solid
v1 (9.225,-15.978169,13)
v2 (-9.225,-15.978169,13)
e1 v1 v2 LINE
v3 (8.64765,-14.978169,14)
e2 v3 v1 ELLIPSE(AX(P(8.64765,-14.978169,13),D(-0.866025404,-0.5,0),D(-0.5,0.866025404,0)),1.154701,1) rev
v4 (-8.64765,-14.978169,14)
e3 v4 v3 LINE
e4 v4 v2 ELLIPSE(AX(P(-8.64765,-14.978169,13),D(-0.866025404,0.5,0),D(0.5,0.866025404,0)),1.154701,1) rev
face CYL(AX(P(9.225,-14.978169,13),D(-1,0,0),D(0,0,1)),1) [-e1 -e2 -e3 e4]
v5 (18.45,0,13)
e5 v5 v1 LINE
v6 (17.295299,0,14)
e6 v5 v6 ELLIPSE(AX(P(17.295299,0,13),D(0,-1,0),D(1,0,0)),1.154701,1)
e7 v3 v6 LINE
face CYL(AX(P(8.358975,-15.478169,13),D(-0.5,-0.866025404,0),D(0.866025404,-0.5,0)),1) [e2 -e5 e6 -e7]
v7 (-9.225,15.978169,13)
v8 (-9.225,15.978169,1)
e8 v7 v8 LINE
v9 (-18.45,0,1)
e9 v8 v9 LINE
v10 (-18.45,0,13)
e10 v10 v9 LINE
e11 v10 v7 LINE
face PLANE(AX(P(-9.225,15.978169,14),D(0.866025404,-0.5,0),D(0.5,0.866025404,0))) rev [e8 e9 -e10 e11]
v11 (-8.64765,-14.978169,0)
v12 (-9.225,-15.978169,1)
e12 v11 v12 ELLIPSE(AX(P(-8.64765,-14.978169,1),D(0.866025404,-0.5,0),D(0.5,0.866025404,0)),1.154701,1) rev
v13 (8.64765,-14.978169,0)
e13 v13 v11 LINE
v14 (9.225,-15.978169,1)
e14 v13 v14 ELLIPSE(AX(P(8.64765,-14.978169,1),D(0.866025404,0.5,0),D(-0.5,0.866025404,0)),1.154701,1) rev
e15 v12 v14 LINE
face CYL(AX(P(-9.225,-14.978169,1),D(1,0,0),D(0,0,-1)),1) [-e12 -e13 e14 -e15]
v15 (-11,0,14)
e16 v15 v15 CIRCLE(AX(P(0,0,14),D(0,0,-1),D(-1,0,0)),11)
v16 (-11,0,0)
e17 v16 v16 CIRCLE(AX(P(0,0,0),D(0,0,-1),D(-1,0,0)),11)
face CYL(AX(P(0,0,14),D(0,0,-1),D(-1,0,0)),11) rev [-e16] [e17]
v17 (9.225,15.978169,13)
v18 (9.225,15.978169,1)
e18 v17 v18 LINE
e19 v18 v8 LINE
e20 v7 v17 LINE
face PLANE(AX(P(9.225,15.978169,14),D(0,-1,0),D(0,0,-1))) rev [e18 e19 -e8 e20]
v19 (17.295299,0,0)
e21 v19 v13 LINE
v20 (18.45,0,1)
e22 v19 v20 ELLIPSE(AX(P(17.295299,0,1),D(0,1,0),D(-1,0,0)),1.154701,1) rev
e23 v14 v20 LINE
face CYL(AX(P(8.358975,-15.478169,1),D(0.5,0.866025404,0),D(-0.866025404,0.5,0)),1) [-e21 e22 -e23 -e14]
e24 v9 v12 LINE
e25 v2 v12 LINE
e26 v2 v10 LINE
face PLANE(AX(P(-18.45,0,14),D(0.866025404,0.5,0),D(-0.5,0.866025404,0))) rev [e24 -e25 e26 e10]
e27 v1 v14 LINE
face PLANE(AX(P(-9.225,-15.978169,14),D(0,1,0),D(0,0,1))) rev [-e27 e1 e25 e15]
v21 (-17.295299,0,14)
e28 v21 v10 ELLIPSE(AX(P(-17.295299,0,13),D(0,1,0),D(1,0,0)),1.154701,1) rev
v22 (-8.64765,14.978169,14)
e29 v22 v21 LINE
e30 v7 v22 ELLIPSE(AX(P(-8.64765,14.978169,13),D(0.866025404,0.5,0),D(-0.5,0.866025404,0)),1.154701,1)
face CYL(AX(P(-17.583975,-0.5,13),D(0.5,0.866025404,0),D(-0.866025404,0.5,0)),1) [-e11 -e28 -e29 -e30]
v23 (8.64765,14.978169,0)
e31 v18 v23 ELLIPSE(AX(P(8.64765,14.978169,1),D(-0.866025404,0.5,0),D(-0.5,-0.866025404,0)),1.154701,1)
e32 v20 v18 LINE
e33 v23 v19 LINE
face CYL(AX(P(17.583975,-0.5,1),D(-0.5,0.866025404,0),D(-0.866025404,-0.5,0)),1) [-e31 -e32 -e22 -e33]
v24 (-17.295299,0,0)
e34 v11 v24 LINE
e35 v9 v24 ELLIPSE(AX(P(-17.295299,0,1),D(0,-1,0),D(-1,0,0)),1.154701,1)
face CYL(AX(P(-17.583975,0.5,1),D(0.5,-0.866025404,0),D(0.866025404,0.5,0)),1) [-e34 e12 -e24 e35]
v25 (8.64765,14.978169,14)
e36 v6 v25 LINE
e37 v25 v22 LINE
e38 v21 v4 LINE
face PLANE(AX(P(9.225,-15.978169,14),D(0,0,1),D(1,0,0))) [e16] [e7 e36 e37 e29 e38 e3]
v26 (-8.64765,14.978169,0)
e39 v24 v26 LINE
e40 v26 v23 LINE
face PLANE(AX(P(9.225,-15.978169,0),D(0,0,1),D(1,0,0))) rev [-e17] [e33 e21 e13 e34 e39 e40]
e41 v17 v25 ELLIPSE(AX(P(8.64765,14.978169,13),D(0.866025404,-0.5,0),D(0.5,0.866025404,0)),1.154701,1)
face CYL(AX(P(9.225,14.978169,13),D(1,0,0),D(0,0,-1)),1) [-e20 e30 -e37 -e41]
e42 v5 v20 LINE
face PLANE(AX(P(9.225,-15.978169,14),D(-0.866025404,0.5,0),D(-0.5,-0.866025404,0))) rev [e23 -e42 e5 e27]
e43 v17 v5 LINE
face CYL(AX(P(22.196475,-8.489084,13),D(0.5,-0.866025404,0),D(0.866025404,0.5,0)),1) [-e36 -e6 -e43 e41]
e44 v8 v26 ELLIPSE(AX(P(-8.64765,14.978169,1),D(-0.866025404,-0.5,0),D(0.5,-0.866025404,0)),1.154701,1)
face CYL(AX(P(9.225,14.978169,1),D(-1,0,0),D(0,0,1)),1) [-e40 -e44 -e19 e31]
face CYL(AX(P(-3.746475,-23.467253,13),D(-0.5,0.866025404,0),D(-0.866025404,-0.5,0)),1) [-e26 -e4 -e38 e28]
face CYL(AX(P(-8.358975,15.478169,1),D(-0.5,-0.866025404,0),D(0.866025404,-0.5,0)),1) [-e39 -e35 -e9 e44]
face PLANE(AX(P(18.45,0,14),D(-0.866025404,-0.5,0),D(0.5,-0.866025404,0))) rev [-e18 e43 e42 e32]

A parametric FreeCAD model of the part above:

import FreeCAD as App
import Part
import Sketcher

V = App.Vector
Q = App.Units.Quantity


def edges_at(feature, points):
    """Names of the edges that pass closest to the given points."""
    edges = feature.Shape.Edges
    near = lambda p: min(range(len(edges)), key=lambda i: edges[i].distToShape(Part.Vertex(*p))[0])
    return sorted({f"Edge{near(p) + 1}" for p in points})


def add_polygon(sketch, points):
    """Adds a closed chain of lines whose ends are joined by coincident constraints."""
    first, n = sketch.GeometryCount, len(points)
    for a, b in zip(points, points[1:] + points[:1]):
        sketch.addGeometry(Part.LineSegment(App.Vector(*a, 0), App.Vector(*b, 0)), False)
    for i in range(n):
        sketch.addConstraint(Sketcher.Constraint("Coincident", first + i, 2, first + (i + 1) % n, 1))

doc = App.newDocument("Part")
params = doc.addObject("Spreadsheet::Sheet", "Params")
for row, (alias, value) in enumerate([
    ("sketch1_width", "18.45 mm"),
    ("pad1_length", "14 mm"),
    ("sketch2_diameter", "22 mm"),
    ("fillet_radius", "1 mm"),
], start=1):
    params.set(f"A{row}", alias)
    params.set(f"B{row}", "=" + value)
    params.setAlias(f"B{row}", alias)

body = doc.addObject("PartDesign::Body", "Body")

# Sketch on XY plane
sketch1 = body.newObject("Sketcher::SketchObject", "Sketch")
sketch1.AttachmentSupport = (doc.getObject("XY_Plane"), [""])
sketch1.MapMode = "FlatFace"
add_polygon(sketch1, [(9, -16), (18, 0), (9, 16), (-9, 16), (-18, 0), (-9, -16)])  # lines 0-5
sketch1.addConstraint([
    Sketcher.Constraint("Horizontal", 2),
    Sketcher.Constraint("Horizontal", 5),
    Sketcher.Constraint("Symmetric", 0, 2, 3, 2, -1, 1),
    Sketcher.Constraint("Symmetric", 1, 2, 4, 2, -1, 1),
    Sketcher.Constraint("PointOnObject", 0, 2, -1),
    Sketcher.Constraint("Parallel", 0, 3),
    Sketcher.Constraint("Vertical", 2, 2, 4, 2),
    Sketcher.Constraint("Angle", 0, Q("60 deg")),
    Sketcher.Constraint("DistanceX", 2, 2, 2, 1, Q("18.45 mm")),
    Sketcher.Constraint("DistanceX", 3, 2, 0, 2, Q("36.9 mm")),
])
sketch1.setExpression("Constraints[14]", "Params.sketch1_width")
pad1 = body.newObject("PartDesign::Pad", "Pad")
pad1.Profile = sketch1
pad1.setExpression("Length", "Params.pad1_length")

# Sketch on XY plane
sketch2 = body.newObject("Sketcher::SketchObject", "Sketch001")
sketch2.AttachmentSupport = (doc.getObject("XY_Plane"), [""])
sketch2.MapMode = "FlatFace"
sketch2.addGeometry(Part.Circle(V(0, 0, 0), V(0, 0, 1), 11), False)
sketch2.addConstraint([
    Sketcher.Constraint("Coincident", 0, 3, -1, 1),
    Sketcher.Constraint("Diameter", 0, Q("22 mm")),
])
sketch2.setExpression("Constraints[1]", "Params.sketch2_diameter")
pocket1 = body.newObject("PartDesign::Pocket", "Pocket")
pocket1.Profile = sketch2
pocket1.Type = "ThroughAll"
pocket1.Reversed = True
doc.recompute()

fillet = body.newObject("PartDesign::Fillet", "Fillet")
fillet.Base = (pocket1, edges_at(pocket1, [
    (13.838, 7.989, 14),
    (0, 15.978, 14),
    (-13.838, 7.989, 14),
    (-13.838, -7.989, 14),
    (0, -15.978, 14),
    (-13.838, -7.989, 0),
    (-13.838, 7.989, 0),
    (0, 15.978, 0),
    (13.838, -7.989, 14),
    (13.838, 7.989, 0),
    (13.838, -7.989, 0),
    (0, -15.978, 0),
]))
fillet.setExpression("Radius", "Params.fillet_radius")

doc.recompute()
